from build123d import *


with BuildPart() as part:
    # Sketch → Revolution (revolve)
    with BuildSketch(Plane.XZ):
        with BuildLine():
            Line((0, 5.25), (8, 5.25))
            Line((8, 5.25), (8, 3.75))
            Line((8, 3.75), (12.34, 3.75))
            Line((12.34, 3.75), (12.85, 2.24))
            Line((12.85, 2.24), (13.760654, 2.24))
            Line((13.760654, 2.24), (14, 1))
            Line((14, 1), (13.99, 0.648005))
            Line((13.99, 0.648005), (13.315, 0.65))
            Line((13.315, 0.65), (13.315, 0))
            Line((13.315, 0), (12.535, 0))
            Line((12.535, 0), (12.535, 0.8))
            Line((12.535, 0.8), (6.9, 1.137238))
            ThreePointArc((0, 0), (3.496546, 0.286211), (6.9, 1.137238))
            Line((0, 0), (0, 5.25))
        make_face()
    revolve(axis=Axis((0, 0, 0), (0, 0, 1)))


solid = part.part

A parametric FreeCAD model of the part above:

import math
import FreeCAD as App
import Part
import Sketcher

doc = App.newDocument("Part")
params = doc.addObject("Spreadsheet::Sheet", "Params")
for row, (alias, value) in enumerate([
    ("sketch1_width", "8 mm"),
    ("sketch1_height", "0.8 mm"),
    ("sketch1_height2", "1.5 mm"),
    ("sketch1_width2", "0.78 mm"),
    ("sketch1_width3", "4.34 mm"),
    ("revolution_angle", "360 deg"),
], start=1):
    params.set(f"A{row}", alias)
    params.set(f"B{row}", "=" + value)
    params.setAlias(f"B{row}", alias)

body = doc.addObject("PartDesign::Body", "Body")

sketch1 = body.newObject("Sketcher::SketchObject", "Sketch")
sketch1.AttachmentSupport = (doc.getObject("XZ_Plane"), [""])
sketch1.MapMode = "FlatFace"
sketch1.addGeometry([
    Part.LineSegment(App.Vector(8, 5.25, 0), App.Vector(0, 5.25, 0)),
    Part.LineSegment(App.Vector(0, 5.25, 0), App.Vector(0, 0, 0)),
    Part.ArcOfCircle(Part.Circle(App.Vector(0.000044, 21.500645, 0), App.Vector(0, 0, 1), 21.500645), math.radians(-90.000117), math.radians(-71.281516)),
    Part.LineSegment(App.Vector(6.9, 1.137238, 0), App.Vector(12.535, 0.8, 0)),
    Part.LineSegment(App.Vector(12.535, 0.8, 0), App.Vector(12.535, 0, 0)),
    Part.LineSegment(App.Vector(12.535, 0, 0), App.Vector(13.315, 0, 0)),
    Part.LineSegment(App.Vector(13.315, 0, 0), App.Vector(13.315, 0.65, 0)),
    Part.LineSegment(App.Vector(13.315, 0.65, 0), App.Vector(13.99, 0.648005, 0)),
    Part.LineSegment(App.Vector(13.99, 0.648005, 0), App.Vector(14, 1, 0)),
    Part.LineSegment(App.Vector(14, 1, 0), App.Vector(13.760654, 2.24, 0)),
    Part.LineSegment(App.Vector(13.760654, 2.24, 0), App.Vector(12.85, 2.24, 0)),
    Part.LineSegment(App.Vector(12.85, 2.24, 0), App.Vector(12.34, 3.75, 0)),
    Part.LineSegment(App.Vector(12.34, 3.75, 0), App.Vector(8, 3.75, 0)),
    Part.LineSegment(App.Vector(8, 3.75, 0), App.Vector(8, 5.25, 0)),
], False)
sketch1.addConstraint([
    Sketcher.Constraint("Coincident", 0, 2, 1, 1),
    Sketcher.Constraint("Coincident", 1, 2, 2, 1),
    Sketcher.Constraint("Coincident", 2, 2, 3, 1),
    Sketcher.Constraint("Coincident", 3, 2, 4, 1),
    Sketcher.Constraint("Coincident", 4, 2, 5, 1),
    Sketcher.Constraint("Coincident", 5, 2, 6, 1),
    Sketcher.Constraint("Coincident", 6, 2, 7, 1),
    Sketcher.Constraint("Coincident", 7, 2, 8, 1),
    Sketcher.Constraint("Coincident", 8, 2, 9, 1),
    Sketcher.Constraint("Coincident", 9, 2, 10, 1),
    Sketcher.Constraint("Coincident", 10, 2, 11, 1),
    Sketcher.Constraint("Coincident", 11, 2, 12, 1),
    Sketcher.Constraint("Coincident", 12, 2, 13, 1),
    Sketcher.Constraint("Coincident", 13, 2, 0, 1),
    Sketcher.Constraint("Horizontal", 0),
    Sketcher.Constraint("Vertical", 1),
    Sketcher.Constraint("Vertical", 4),
    Sketcher.Constraint("Horizontal", 5),
    Sketcher.Constraint("Vertical", 6),
    Sketcher.Constraint("Horizontal", 10),
    Sketcher.Constraint("Horizontal", 12),
    Sketcher.Constraint("Vertical", 13),
    Sketcher.Constraint("Coincident", 1, 2, -1, 1),
    Sketcher.Constraint("PointOnObject", 4, 2, -1),
    Sketcher.Constraint("DistanceX", 0, 2, 0, 1, 8.0),
    Sketcher.Constraint("DistanceY", 4, 2, 4, 1, 0.8),
    Sketcher.Constraint("DistanceY", 13, 1, 13, 2, 1.5),
    Sketcher.Constraint("DistanceX", -1, 1, 8, 2, 14.0),
    Sketcher.Constraint("DistanceY", -1, 1, 8, 2, 1.0),
    Sketcher.Constraint("DistanceX", 5, 1, 5, 2, 0.78),
    Sketcher.Constraint("DistanceX", 12, 2, 12, 1, 4.34),
    Sketcher.Constraint("DistanceY", 1, 2, 1, 1, 5.25),
    Sketcher.Constraint("DistanceY", 6, 1, 6, 2, 0.65),
    Sketcher.Constraint("DistanceX", -1, 1, 2, 2, 6.9),
    Sketcher.Constraint("DistanceX", -1, 1, 7, 2, 13.99),
    Sketcher.Constraint("DistanceY", -1, 1, 9, 2, 2.24),
    Sketcher.Constraint("DistanceX", -1, 1, 10, 2, 12.85),
    Sketcher.Constraint("DistanceX", -1, 1, 3, 2, 12.535),
    Sketcher.Constraint("Radius", 2, 21.500645),
    Sketcher.Constraint("Distance", 9, 1.262888),
    Sketcher.Constraint("DistanceY", -1, 1, 2, 2, 1.137238),
    Sketcher.Constraint("Distance", 8, 0.352137),
])
sketch1.setExpression("Constraints[24]", "Params.sketch1_width")
sketch1.setExpression("Constraints[25]", "Params.sketch1_height")
sketch1.setExpression("Constraints[26]", "Params.sketch1_height2")
sketch1.setExpression("Constraints[29]", "Params.sketch1_width2")
sketch1.setExpression("Constraints[30]", "Params.sketch1_width3")
revolution = body.newObject("PartDesign::Revolution", "Revolution")
revolution.Profile = sketch1
revolution.ReferenceAxis = (sketch1, ["V_Axis"])
revolution.setExpression("Angle", "Params.revolution_angle")

doc.recompute()
